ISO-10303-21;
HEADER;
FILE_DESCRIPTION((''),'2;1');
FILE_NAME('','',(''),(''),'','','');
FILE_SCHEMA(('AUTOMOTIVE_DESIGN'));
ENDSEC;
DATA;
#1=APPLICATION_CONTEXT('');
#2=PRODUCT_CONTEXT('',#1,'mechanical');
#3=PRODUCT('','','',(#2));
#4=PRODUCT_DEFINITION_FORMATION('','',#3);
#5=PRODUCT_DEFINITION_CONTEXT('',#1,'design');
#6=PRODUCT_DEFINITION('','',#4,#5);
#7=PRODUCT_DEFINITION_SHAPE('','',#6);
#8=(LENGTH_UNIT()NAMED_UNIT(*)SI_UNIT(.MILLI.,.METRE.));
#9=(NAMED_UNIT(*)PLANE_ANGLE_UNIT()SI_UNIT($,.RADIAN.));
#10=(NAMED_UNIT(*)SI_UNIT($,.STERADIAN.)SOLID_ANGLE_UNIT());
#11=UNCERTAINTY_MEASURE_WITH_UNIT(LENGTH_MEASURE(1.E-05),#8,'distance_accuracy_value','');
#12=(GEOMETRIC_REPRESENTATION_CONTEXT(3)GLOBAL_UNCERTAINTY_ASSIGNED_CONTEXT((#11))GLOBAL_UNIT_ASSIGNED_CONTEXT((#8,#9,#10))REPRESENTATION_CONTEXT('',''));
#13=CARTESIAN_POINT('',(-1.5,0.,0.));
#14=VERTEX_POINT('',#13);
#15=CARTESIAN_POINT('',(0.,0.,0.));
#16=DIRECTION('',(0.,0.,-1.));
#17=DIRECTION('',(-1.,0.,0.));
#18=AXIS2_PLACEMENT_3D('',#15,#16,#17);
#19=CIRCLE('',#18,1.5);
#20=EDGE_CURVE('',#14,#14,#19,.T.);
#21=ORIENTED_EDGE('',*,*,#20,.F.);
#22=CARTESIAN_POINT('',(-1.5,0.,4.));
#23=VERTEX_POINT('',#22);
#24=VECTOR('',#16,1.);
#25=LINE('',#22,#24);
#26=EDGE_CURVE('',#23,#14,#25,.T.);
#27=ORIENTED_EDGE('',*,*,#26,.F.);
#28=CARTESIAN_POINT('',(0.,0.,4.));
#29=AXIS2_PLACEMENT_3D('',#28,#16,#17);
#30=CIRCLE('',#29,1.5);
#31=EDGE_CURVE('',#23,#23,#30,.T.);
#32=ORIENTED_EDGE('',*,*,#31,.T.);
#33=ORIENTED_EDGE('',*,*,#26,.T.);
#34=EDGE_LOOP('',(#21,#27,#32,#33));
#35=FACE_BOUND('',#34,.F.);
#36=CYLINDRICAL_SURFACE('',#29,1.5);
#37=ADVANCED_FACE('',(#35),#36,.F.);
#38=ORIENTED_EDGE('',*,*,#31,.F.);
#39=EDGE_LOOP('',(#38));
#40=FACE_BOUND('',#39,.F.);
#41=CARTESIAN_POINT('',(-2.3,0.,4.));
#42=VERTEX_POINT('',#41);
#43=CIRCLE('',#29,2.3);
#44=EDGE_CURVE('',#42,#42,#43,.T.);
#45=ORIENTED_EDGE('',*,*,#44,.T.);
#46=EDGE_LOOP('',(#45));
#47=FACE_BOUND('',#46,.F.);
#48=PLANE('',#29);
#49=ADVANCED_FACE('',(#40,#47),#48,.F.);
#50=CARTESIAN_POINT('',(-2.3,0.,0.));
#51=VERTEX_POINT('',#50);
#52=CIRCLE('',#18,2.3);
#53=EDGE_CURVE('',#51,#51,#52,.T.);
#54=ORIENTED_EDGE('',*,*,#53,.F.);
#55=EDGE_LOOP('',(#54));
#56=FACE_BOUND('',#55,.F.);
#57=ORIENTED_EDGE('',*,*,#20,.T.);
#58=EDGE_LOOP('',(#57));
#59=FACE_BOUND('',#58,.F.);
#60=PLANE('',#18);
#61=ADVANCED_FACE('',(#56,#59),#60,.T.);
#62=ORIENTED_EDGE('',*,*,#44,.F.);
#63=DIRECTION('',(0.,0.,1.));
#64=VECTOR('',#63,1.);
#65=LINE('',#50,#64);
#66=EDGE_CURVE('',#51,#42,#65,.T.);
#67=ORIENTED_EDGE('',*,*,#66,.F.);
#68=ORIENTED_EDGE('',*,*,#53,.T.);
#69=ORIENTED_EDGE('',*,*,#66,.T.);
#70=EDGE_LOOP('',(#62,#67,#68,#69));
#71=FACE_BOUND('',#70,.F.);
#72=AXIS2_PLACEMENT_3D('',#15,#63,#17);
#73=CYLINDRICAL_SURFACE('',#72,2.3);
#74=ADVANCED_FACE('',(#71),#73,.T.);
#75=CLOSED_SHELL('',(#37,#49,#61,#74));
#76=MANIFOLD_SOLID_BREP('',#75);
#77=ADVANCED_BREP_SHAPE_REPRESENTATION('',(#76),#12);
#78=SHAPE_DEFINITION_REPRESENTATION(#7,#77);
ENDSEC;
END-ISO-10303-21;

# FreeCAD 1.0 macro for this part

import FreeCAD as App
import Part
import Sketcher

doc = App.newDocument("Part")
body = doc.addObject("PartDesign::Body", "Body")

# Sketch on XZ plane
sketch1 = body.newObject("Sketcher::SketchObject", "Sketch")
sketch1.AttachmentSupport = (doc.getObject("XZ_Plane"), [""])
sketch1.MapMode = "FlatFace"
sketch1.addGeometry(Part.LineSegment(App.Vector(-2.3, 4, 0), App.Vector(-1.5, 4, 0)), False)
sketch1.addGeometry(Part.LineSegment(App.Vector(-1.5, 4, 0), App.Vector(-1.5, 0, 0)), False)
sketch1.addGeometry(Part.LineSegment(App.Vector(-1.5, 0, 0), App.Vector(-2.3, 0, 0)), False)
sketch1.addGeometry(Part.LineSegment(App.Vector(-2.3, 0, 0), App.Vector(-2.3, 4, 0)), False)
sketch1.addConstraint(Sketcher.Constraint("Coincident", 0, 2, 1, 1))
sketch1.addConstraint(Sketcher.Constraint("Coincident", 1, 2, 2, 1))
sketch1.addConstraint(Sketcher.Constraint("Coincident", 2, 2, 3, 1))
sketch1.addConstraint(Sketcher.Constraint("Coincident", 3, 2, 0, 1))
sketch1.addConstraint(Sketcher.Constraint("Horizontal", 0))
sketch1.addConstraint(Sketcher.Constraint("Vertical", 1))
sketch1.addConstraint(Sketcher.Constraint("Horizontal", 2))
sketch1.addConstraint(Sketcher.Constraint("Vertical", 3))
sketch1.addConstraint(Sketcher.Constraint("PointOnObject", 1, 2, -1))
sketch1.addConstraint(Sketcher.Constraint("DistanceY", 1, 2, 1, 1, 4.0))
sketch1.addConstraint(Sketcher.Constraint("DistanceX", 0, 2, -1, 1, 1.5))
sketch1.addConstraint(Sketcher.Constraint("DistanceX", 2, 2, -1, 1, 2.3))
revolution = body.newObject("PartDesign::Revolution", "Revolution")
revolution.Profile = sketch1
revolution.ReferenceAxis = (sketch1, ["V_Axis"])
revolution.Angle = 360

doc.recompute()
